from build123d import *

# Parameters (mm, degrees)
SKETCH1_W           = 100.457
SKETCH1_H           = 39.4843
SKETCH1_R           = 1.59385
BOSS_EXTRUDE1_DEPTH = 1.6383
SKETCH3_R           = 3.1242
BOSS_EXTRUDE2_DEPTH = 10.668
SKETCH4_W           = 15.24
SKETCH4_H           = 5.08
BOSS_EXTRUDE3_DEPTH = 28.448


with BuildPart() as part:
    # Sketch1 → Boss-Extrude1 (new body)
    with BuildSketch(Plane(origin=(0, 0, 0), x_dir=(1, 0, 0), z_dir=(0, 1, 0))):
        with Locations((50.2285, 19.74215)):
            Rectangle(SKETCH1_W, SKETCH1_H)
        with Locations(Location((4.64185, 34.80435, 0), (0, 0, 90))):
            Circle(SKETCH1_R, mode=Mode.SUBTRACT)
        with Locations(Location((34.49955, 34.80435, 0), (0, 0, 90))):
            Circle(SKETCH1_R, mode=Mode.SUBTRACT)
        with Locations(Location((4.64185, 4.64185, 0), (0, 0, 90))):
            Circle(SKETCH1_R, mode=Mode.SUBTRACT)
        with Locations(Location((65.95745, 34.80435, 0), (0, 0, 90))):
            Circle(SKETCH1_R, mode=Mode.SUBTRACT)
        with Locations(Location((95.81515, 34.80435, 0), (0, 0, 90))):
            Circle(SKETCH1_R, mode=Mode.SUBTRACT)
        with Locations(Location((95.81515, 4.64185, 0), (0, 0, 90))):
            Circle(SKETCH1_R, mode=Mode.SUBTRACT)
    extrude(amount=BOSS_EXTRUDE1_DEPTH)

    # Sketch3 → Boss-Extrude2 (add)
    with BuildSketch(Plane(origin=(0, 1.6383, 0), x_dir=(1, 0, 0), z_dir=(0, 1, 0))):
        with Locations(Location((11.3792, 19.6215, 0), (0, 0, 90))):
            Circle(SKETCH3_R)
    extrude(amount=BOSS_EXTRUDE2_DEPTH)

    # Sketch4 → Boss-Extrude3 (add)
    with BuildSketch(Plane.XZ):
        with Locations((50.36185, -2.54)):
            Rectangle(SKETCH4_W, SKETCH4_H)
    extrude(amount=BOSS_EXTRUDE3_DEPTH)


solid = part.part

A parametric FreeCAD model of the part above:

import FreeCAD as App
import Part
import Sketcher

V = App.Vector
Q = App.Units.Quantity

doc = App.newDocument("Part")
params = doc.addObject("Spreadsheet::Sheet", "Params")
for row, (alias, value) in enumerate([
    ("sketch1_width", "3.955 in"),
    ("pad1_length", "0.0645 in"),
    ("sketch2_diameter", "0.246 in"),
    ("pad2_length", "0.42 in"),
    ("sketch3_width", "0.6 in"),
    ("sketch3_height", "0.2 in"),
    ("pad3_length", "1.12 in"),
], start=1):
    params.set(f"A{row}", alias)
    params.set(f"B{row}", "=" + value)
    params.setAlias(f"B{row}", alias)

body = doc.addObject("PartDesign::Body", "Body")

sketch1 = body.newObject("Sketcher::SketchObject", "Sketch")
sketch1.AttachmentSupport = (doc.getObject("XZ_Plane"), [""])
sketch1.MapMode = "FlatFace"
sketch1.addGeometry(Part.LineSegment(V(0, -39.5, 0), V(0, 0, 0)), False)
sketch1.addGeometry(Part.LineSegment(V(0, 0, 0), V(100.5, 0, 0)), False)
sketch1.addGeometry(Part.LineSegment(V(100.5, 0, 0), V(100.5, -39.5, 0)), False)
sketch1.addGeometry(Part.LineSegment(V(100.5, -39.5, 0), V(0, -39.5, 0)), False)
sketch1.addGeometry(Part.Circle(V(4.6, -4.6, 0), V(0, 0, 1), 1.6), False)
sketch1.addGeometry(Part.Circle(V(95.8, -4.6, 0), V(0, 0, 1), 1.6), False)
sketch1.addGeometry(Part.Circle(V(4.6, -34.8, 0), V(0, 0, 1), 1.6), False)
sketch1.addGeometry(Part.Circle(V(34.5, -34.8, 0), V(0, 0, 1), 1.6), False)
sketch1.addGeometry(Part.Circle(V(66, -34.8, 0), V(0, 0, 1), 1.6), False)
sketch1.addGeometry(Part.Circle(V(95.8, -34.8, 0), V(0, 0, 1), 1.6), False)
sketch1.addConstraint(Sketcher.Constraint("Coincident", 0, 2, 1, 1))
sketch1.addConstraint(Sketcher.Constraint("Coincident", 1, 2, 2, 1))
sketch1.addConstraint(Sketcher.Constraint("Coincident", 2, 2, 3, 1))
sketch1.addConstraint(Sketcher.Constraint("Coincident", 3, 2, 0, 1))
sketch1.addConstraint(Sketcher.Constraint("Vertical", 0))
sketch1.addConstraint(Sketcher.Constraint("Horizontal", 1))
sketch1.addConstraint(Sketcher.Constraint("Vertical", 2))
sketch1.addConstraint(Sketcher.Constraint("Horizontal", 3))
sketch1.addConstraint(Sketcher.Constraint("Coincident", 0, 2, -1, 1))
sketch1.addConstraint(Sketcher.Constraint("Equal", 4, 5))
sketch1.addConstraint(Sketcher.Constraint("Equal", 5, 6))
sketch1.addConstraint(Sketcher.Constraint("Equal", 6, 7))
sketch1.addConstraint(Sketcher.Constraint("Equal", 7, 8))
sketch1.addConstraint(Sketcher.Constraint("Equal", 8, 9))
sketch1.addConstraint(Sketcher.Constraint("Horizontal", 4, 3, 5, 3))
sketch1.addConstraint(Sketcher.Constraint("Horizontal", 6, 3, 7, 3))
sketch1.addConstraint(Sketcher.Constraint("Horizontal", 7, 3, 8, 3))
sketch1.addConstraint(Sketcher.Constraint("Horizontal", 8, 3, 9, 3))
sketch1.addConstraint(Sketcher.Constraint("Vertical", 4, 3, 6, 3))
sketch1.addConstraint(Sketcher.Constraint("Vertical", 5, 3, 9, 3))
sketch1.addConstraint(Sketcher.Constraint("Diameter", 4, Q("0.1255 in")))
sketch1.addConstraint(Sketcher.Constraint("DistanceX", 1, 1, 1, 2, Q("3.955 in")))
sketch1.addConstraint(Sketcher.Constraint("DistanceY", 0, 1, 0, 2, Q("1.5545 in")))
sketch1.addConstraint(Sketcher.Constraint("DistanceY", 6, 3, 4, 3, Q("1.1875 in")))
sketch1.addConstraint(Sketcher.Constraint("DistanceX", 7, 3, 5, 3, Q("2.414 in")))
sketch1.addConstraint(Sketcher.Constraint("DistanceX", 6, 3, 8, 3, Q("2.414 in")))
sketch1.addConstraint(Sketcher.Constraint("DistanceX", 4, 3, 5, 3, Q("3.5895 in")))
sketch1.addConstraint(Sketcher.Constraint("DistanceX", -1, 1, 4, 3, 4.64185))
sketch1.addConstraint(Sketcher.Constraint("DistanceY", 4, 3, -1, 1, 4.64185))
sketch1.setExpression("Constraints[21]", "Params.sketch1_width")
pad1 = body.newObject("PartDesign::Pad", "Pad")
pad1.Profile = sketch1
pad1.setExpression("Length", "Params.pad1_length")
pad1.Reversed = True

sketch2 = body.newObject("Sketcher::SketchObject", "Sketch001")
sketch2.AttachmentSupport = (doc.getObject("XZ_Plane"), [""])
sketch2.MapMode = "FlatFace"
sketch2.AttachmentOffset = App.Placement(V(0, 0, -0.0645 * 25.4), App.Rotation())
sketch2.addGeometry(Part.Circle(V(11.4, -19.6, 0), V(0, 0, 1), 3.1), False)
sketch2.addConstraint(Sketcher.Constraint("Diameter", 0, Q("0.246 in")))
sketch2.addConstraint(Sketcher.Constraint("DistanceX", -1, 1, 0, 3, Q("0.448 in")))
sketch2.addConstraint(Sketcher.Constraint("DistanceY", 0, 3, -1, 1, Q("0.7725 in")))
sketch2.setExpression("Constraints[0]", "Params.sketch2_diameter")
pad2 = body.newObject("PartDesign::Pad", "Pad001")
pad2.Profile = sketch2
pad2.setExpression("Length", "Params.pad2_length")
pad2.Reversed = True

sketch3 = body.newObject("Sketcher::SketchObject", "Sketch002")
sketch3.AttachmentSupport = (doc.getObject("XZ_Plane"), [""])
sketch3.MapMode = "FlatFace"
sketch3.addGeometry(Part.LineSegment(V(43, 0, 0), V(43, -5, 0)), False)
sketch3.addGeometry(Part.LineSegment(V(43, -5, 0), V(58, -5, 0)), False)
sketch3.addGeometry(Part.LineSegment(V(58, -5, 0), V(58, 0, 0)), False)
sketch3.addGeometry(Part.LineSegment(V(58, 0, 0), V(43, 0, 0)), False)
sketch3.addConstraint(Sketcher.Constraint("Coincident", 0, 2, 1, 1))
sketch3.addConstraint(Sketcher.Constraint("Coincident", 1, 2, 2, 1))
sketch3.addConstraint(Sketcher.Constraint("Coincident", 2, 2, 3, 1))
sketch3.addConstraint(Sketcher.Constraint("Coincident", 3, 2, 0, 1))
sketch3.addConstraint(Sketcher.Constraint("Vertical", 0))
sketch3.addConstraint(Sketcher.Constraint("Horizontal", 1))
sketch3.addConstraint(Sketcher.Constraint("Vertical", 2))
sketch3.addConstraint(Sketcher.Constraint("Horizontal", 3))
sketch3.addConstraint(Sketcher.Constraint("PointOnObject", 2, 2, -1))
sketch3.addConstraint(Sketcher.Constraint("DistanceX", 1, 1, 1, 2, Q("0.6 in")))
sketch3.addConstraint(Sketcher.Constraint("DistanceY", 0, 2, 0, 1, Q("0.2 in")))
sketch3.addConstraint(Sketcher.Constraint("DistanceX", -1, 1, 0, 2, 42.74185))
sketch3.setExpression("Constraints[9]", "Params.sketch3_width")
sketch3.setExpression("Constraints[10]", "Params.sketch3_height")
pad3 = body.newObject("PartDesign::Pad", "Pad002")
pad3.Profile = sketch3
pad3.setExpression("Length", "Params.pad3_length")

doc.recompute()
